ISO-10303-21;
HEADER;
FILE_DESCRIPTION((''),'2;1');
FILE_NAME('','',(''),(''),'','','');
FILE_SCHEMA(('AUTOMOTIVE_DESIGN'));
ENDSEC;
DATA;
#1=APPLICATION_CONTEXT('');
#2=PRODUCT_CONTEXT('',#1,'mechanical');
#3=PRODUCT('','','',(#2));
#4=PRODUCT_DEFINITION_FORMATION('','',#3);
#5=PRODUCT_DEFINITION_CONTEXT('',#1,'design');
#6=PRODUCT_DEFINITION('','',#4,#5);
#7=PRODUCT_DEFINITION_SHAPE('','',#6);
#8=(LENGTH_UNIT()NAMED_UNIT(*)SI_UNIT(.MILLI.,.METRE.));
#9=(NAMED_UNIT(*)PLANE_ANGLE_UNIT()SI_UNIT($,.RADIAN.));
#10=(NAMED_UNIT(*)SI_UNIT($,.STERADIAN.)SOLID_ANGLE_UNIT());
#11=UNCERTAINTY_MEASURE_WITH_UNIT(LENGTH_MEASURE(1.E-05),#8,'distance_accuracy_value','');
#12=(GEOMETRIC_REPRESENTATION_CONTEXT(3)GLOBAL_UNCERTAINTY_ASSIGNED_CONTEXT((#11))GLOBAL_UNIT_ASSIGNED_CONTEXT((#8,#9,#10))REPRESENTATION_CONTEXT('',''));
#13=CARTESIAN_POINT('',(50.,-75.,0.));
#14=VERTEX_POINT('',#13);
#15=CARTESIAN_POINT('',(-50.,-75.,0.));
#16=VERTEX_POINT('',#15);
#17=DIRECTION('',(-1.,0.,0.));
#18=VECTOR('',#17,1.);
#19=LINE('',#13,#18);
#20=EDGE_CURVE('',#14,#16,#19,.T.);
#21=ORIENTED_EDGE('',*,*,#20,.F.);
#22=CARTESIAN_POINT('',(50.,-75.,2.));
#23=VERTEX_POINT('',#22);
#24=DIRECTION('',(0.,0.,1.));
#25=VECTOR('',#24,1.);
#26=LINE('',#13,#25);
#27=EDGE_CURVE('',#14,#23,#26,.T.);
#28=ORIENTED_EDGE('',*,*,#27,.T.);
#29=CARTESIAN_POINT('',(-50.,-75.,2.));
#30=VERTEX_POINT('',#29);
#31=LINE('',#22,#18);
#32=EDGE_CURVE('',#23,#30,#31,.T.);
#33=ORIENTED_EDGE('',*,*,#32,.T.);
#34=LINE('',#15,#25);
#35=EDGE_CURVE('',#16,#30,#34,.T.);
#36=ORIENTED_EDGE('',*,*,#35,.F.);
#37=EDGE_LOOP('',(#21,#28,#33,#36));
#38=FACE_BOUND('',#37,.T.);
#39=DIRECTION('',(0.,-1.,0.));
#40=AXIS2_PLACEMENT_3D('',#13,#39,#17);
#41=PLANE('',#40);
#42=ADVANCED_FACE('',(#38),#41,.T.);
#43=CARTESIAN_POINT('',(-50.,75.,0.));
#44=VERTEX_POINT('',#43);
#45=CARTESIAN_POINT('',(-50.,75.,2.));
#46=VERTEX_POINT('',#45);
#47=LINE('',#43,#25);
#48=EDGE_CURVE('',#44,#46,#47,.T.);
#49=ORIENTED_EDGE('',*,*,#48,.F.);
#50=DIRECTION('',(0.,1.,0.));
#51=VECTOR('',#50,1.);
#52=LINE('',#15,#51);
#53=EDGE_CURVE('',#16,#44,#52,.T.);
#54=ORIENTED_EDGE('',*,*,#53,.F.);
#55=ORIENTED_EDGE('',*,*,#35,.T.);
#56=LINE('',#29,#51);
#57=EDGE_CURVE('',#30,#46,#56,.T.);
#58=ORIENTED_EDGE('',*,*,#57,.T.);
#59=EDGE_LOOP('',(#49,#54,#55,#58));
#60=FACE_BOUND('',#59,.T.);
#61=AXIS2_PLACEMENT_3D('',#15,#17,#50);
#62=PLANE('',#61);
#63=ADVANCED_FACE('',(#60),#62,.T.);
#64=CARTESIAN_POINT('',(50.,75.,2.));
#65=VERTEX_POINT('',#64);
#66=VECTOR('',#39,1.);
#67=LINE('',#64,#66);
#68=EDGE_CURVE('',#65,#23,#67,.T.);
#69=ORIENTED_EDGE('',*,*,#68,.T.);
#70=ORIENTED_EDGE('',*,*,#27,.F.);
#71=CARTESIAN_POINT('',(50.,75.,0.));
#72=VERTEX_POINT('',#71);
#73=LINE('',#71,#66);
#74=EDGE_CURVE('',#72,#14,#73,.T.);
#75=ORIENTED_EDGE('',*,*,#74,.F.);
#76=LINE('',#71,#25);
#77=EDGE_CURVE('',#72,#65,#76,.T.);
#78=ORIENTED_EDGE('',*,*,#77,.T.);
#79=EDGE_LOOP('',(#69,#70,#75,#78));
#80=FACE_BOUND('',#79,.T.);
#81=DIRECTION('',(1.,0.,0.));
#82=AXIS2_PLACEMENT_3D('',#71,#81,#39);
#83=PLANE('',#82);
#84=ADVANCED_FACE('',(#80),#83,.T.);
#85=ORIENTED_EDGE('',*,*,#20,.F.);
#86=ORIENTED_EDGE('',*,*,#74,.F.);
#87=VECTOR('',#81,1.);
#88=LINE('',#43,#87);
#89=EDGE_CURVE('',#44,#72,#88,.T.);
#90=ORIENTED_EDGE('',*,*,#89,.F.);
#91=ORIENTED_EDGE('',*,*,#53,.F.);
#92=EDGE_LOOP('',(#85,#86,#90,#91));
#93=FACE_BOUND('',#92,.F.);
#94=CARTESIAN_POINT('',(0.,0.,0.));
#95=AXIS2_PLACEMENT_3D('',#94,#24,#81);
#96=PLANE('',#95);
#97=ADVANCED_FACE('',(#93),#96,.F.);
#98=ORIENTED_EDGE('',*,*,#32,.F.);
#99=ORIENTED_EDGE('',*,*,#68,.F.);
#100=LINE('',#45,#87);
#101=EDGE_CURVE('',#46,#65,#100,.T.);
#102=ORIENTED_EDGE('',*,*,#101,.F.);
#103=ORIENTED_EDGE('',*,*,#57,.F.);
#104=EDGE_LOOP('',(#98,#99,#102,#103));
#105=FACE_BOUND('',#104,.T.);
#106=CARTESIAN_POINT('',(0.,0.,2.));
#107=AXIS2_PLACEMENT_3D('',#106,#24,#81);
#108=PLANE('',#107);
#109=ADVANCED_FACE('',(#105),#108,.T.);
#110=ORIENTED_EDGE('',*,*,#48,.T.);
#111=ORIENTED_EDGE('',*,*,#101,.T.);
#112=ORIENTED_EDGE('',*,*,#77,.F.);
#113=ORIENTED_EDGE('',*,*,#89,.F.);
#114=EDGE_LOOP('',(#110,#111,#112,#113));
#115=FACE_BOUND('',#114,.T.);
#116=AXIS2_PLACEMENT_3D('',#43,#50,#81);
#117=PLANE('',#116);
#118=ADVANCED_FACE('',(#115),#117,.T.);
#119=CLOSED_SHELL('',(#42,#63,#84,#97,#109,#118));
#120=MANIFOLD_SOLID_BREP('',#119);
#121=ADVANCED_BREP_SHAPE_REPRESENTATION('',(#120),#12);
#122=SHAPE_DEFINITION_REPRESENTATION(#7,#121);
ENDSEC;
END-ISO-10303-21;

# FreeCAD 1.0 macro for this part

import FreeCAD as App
import Part
import Sketcher
from FreeCAD import Vector


def add_polygon(sketch, points):
    """Adds a closed chain of lines whose ends are joined by coincident constraints."""
    first, n = sketch.GeometryCount, len(points)
    for a, b in zip(points, points[1:] + points[:1]):
        sketch.addGeometry(Part.LineSegment(App.Vector(*a, 0), App.Vector(*b, 0)), False)
    for i in range(n):
        sketch.addConstraint(Sketcher.Constraint("Coincident", first + i, 2, first + (i + 1) % n, 1))

doc = App.newDocument("Part")
body = doc.addObject("PartDesign::Body", "Body")

# Sketch on XY plane
sketch1 = doc.addObject("Sketcher::SketchObject", "Sketch")
body.addObject(sketch1)
sketch1.AttachmentSupport = (doc.XY_Plane, [""])
sketch1.MapMode = "FlatFace"
add_polygon(sketch1, [(-50, -75), (50, -75), (50, 75), (-50, 75)])  # lines 0-3
sketch1.addConstraint([
    Sketcher.Constraint("Horizontal", 0),
    Sketcher.Constraint("Vertical", 1),
    Sketcher.Constraint("Horizontal", 2),
    Sketcher.Constraint("Vertical", 3),
    Sketcher.Constraint("Symmetric", 0, 2, 2, 2, -1, 1),
    Sketcher.Constraint("DistanceX", 0, 1, 0, 2, 100.0),
    Sketcher.Constraint("DistanceY", 1, 1, 1, 2, 150.0),
])
pad1 = doc.addObject("PartDesign::Pad", "Pad")
body.addObject(pad1)
pad1.Profile = sketch1
pad1.Length = 2

doc.recompute()
